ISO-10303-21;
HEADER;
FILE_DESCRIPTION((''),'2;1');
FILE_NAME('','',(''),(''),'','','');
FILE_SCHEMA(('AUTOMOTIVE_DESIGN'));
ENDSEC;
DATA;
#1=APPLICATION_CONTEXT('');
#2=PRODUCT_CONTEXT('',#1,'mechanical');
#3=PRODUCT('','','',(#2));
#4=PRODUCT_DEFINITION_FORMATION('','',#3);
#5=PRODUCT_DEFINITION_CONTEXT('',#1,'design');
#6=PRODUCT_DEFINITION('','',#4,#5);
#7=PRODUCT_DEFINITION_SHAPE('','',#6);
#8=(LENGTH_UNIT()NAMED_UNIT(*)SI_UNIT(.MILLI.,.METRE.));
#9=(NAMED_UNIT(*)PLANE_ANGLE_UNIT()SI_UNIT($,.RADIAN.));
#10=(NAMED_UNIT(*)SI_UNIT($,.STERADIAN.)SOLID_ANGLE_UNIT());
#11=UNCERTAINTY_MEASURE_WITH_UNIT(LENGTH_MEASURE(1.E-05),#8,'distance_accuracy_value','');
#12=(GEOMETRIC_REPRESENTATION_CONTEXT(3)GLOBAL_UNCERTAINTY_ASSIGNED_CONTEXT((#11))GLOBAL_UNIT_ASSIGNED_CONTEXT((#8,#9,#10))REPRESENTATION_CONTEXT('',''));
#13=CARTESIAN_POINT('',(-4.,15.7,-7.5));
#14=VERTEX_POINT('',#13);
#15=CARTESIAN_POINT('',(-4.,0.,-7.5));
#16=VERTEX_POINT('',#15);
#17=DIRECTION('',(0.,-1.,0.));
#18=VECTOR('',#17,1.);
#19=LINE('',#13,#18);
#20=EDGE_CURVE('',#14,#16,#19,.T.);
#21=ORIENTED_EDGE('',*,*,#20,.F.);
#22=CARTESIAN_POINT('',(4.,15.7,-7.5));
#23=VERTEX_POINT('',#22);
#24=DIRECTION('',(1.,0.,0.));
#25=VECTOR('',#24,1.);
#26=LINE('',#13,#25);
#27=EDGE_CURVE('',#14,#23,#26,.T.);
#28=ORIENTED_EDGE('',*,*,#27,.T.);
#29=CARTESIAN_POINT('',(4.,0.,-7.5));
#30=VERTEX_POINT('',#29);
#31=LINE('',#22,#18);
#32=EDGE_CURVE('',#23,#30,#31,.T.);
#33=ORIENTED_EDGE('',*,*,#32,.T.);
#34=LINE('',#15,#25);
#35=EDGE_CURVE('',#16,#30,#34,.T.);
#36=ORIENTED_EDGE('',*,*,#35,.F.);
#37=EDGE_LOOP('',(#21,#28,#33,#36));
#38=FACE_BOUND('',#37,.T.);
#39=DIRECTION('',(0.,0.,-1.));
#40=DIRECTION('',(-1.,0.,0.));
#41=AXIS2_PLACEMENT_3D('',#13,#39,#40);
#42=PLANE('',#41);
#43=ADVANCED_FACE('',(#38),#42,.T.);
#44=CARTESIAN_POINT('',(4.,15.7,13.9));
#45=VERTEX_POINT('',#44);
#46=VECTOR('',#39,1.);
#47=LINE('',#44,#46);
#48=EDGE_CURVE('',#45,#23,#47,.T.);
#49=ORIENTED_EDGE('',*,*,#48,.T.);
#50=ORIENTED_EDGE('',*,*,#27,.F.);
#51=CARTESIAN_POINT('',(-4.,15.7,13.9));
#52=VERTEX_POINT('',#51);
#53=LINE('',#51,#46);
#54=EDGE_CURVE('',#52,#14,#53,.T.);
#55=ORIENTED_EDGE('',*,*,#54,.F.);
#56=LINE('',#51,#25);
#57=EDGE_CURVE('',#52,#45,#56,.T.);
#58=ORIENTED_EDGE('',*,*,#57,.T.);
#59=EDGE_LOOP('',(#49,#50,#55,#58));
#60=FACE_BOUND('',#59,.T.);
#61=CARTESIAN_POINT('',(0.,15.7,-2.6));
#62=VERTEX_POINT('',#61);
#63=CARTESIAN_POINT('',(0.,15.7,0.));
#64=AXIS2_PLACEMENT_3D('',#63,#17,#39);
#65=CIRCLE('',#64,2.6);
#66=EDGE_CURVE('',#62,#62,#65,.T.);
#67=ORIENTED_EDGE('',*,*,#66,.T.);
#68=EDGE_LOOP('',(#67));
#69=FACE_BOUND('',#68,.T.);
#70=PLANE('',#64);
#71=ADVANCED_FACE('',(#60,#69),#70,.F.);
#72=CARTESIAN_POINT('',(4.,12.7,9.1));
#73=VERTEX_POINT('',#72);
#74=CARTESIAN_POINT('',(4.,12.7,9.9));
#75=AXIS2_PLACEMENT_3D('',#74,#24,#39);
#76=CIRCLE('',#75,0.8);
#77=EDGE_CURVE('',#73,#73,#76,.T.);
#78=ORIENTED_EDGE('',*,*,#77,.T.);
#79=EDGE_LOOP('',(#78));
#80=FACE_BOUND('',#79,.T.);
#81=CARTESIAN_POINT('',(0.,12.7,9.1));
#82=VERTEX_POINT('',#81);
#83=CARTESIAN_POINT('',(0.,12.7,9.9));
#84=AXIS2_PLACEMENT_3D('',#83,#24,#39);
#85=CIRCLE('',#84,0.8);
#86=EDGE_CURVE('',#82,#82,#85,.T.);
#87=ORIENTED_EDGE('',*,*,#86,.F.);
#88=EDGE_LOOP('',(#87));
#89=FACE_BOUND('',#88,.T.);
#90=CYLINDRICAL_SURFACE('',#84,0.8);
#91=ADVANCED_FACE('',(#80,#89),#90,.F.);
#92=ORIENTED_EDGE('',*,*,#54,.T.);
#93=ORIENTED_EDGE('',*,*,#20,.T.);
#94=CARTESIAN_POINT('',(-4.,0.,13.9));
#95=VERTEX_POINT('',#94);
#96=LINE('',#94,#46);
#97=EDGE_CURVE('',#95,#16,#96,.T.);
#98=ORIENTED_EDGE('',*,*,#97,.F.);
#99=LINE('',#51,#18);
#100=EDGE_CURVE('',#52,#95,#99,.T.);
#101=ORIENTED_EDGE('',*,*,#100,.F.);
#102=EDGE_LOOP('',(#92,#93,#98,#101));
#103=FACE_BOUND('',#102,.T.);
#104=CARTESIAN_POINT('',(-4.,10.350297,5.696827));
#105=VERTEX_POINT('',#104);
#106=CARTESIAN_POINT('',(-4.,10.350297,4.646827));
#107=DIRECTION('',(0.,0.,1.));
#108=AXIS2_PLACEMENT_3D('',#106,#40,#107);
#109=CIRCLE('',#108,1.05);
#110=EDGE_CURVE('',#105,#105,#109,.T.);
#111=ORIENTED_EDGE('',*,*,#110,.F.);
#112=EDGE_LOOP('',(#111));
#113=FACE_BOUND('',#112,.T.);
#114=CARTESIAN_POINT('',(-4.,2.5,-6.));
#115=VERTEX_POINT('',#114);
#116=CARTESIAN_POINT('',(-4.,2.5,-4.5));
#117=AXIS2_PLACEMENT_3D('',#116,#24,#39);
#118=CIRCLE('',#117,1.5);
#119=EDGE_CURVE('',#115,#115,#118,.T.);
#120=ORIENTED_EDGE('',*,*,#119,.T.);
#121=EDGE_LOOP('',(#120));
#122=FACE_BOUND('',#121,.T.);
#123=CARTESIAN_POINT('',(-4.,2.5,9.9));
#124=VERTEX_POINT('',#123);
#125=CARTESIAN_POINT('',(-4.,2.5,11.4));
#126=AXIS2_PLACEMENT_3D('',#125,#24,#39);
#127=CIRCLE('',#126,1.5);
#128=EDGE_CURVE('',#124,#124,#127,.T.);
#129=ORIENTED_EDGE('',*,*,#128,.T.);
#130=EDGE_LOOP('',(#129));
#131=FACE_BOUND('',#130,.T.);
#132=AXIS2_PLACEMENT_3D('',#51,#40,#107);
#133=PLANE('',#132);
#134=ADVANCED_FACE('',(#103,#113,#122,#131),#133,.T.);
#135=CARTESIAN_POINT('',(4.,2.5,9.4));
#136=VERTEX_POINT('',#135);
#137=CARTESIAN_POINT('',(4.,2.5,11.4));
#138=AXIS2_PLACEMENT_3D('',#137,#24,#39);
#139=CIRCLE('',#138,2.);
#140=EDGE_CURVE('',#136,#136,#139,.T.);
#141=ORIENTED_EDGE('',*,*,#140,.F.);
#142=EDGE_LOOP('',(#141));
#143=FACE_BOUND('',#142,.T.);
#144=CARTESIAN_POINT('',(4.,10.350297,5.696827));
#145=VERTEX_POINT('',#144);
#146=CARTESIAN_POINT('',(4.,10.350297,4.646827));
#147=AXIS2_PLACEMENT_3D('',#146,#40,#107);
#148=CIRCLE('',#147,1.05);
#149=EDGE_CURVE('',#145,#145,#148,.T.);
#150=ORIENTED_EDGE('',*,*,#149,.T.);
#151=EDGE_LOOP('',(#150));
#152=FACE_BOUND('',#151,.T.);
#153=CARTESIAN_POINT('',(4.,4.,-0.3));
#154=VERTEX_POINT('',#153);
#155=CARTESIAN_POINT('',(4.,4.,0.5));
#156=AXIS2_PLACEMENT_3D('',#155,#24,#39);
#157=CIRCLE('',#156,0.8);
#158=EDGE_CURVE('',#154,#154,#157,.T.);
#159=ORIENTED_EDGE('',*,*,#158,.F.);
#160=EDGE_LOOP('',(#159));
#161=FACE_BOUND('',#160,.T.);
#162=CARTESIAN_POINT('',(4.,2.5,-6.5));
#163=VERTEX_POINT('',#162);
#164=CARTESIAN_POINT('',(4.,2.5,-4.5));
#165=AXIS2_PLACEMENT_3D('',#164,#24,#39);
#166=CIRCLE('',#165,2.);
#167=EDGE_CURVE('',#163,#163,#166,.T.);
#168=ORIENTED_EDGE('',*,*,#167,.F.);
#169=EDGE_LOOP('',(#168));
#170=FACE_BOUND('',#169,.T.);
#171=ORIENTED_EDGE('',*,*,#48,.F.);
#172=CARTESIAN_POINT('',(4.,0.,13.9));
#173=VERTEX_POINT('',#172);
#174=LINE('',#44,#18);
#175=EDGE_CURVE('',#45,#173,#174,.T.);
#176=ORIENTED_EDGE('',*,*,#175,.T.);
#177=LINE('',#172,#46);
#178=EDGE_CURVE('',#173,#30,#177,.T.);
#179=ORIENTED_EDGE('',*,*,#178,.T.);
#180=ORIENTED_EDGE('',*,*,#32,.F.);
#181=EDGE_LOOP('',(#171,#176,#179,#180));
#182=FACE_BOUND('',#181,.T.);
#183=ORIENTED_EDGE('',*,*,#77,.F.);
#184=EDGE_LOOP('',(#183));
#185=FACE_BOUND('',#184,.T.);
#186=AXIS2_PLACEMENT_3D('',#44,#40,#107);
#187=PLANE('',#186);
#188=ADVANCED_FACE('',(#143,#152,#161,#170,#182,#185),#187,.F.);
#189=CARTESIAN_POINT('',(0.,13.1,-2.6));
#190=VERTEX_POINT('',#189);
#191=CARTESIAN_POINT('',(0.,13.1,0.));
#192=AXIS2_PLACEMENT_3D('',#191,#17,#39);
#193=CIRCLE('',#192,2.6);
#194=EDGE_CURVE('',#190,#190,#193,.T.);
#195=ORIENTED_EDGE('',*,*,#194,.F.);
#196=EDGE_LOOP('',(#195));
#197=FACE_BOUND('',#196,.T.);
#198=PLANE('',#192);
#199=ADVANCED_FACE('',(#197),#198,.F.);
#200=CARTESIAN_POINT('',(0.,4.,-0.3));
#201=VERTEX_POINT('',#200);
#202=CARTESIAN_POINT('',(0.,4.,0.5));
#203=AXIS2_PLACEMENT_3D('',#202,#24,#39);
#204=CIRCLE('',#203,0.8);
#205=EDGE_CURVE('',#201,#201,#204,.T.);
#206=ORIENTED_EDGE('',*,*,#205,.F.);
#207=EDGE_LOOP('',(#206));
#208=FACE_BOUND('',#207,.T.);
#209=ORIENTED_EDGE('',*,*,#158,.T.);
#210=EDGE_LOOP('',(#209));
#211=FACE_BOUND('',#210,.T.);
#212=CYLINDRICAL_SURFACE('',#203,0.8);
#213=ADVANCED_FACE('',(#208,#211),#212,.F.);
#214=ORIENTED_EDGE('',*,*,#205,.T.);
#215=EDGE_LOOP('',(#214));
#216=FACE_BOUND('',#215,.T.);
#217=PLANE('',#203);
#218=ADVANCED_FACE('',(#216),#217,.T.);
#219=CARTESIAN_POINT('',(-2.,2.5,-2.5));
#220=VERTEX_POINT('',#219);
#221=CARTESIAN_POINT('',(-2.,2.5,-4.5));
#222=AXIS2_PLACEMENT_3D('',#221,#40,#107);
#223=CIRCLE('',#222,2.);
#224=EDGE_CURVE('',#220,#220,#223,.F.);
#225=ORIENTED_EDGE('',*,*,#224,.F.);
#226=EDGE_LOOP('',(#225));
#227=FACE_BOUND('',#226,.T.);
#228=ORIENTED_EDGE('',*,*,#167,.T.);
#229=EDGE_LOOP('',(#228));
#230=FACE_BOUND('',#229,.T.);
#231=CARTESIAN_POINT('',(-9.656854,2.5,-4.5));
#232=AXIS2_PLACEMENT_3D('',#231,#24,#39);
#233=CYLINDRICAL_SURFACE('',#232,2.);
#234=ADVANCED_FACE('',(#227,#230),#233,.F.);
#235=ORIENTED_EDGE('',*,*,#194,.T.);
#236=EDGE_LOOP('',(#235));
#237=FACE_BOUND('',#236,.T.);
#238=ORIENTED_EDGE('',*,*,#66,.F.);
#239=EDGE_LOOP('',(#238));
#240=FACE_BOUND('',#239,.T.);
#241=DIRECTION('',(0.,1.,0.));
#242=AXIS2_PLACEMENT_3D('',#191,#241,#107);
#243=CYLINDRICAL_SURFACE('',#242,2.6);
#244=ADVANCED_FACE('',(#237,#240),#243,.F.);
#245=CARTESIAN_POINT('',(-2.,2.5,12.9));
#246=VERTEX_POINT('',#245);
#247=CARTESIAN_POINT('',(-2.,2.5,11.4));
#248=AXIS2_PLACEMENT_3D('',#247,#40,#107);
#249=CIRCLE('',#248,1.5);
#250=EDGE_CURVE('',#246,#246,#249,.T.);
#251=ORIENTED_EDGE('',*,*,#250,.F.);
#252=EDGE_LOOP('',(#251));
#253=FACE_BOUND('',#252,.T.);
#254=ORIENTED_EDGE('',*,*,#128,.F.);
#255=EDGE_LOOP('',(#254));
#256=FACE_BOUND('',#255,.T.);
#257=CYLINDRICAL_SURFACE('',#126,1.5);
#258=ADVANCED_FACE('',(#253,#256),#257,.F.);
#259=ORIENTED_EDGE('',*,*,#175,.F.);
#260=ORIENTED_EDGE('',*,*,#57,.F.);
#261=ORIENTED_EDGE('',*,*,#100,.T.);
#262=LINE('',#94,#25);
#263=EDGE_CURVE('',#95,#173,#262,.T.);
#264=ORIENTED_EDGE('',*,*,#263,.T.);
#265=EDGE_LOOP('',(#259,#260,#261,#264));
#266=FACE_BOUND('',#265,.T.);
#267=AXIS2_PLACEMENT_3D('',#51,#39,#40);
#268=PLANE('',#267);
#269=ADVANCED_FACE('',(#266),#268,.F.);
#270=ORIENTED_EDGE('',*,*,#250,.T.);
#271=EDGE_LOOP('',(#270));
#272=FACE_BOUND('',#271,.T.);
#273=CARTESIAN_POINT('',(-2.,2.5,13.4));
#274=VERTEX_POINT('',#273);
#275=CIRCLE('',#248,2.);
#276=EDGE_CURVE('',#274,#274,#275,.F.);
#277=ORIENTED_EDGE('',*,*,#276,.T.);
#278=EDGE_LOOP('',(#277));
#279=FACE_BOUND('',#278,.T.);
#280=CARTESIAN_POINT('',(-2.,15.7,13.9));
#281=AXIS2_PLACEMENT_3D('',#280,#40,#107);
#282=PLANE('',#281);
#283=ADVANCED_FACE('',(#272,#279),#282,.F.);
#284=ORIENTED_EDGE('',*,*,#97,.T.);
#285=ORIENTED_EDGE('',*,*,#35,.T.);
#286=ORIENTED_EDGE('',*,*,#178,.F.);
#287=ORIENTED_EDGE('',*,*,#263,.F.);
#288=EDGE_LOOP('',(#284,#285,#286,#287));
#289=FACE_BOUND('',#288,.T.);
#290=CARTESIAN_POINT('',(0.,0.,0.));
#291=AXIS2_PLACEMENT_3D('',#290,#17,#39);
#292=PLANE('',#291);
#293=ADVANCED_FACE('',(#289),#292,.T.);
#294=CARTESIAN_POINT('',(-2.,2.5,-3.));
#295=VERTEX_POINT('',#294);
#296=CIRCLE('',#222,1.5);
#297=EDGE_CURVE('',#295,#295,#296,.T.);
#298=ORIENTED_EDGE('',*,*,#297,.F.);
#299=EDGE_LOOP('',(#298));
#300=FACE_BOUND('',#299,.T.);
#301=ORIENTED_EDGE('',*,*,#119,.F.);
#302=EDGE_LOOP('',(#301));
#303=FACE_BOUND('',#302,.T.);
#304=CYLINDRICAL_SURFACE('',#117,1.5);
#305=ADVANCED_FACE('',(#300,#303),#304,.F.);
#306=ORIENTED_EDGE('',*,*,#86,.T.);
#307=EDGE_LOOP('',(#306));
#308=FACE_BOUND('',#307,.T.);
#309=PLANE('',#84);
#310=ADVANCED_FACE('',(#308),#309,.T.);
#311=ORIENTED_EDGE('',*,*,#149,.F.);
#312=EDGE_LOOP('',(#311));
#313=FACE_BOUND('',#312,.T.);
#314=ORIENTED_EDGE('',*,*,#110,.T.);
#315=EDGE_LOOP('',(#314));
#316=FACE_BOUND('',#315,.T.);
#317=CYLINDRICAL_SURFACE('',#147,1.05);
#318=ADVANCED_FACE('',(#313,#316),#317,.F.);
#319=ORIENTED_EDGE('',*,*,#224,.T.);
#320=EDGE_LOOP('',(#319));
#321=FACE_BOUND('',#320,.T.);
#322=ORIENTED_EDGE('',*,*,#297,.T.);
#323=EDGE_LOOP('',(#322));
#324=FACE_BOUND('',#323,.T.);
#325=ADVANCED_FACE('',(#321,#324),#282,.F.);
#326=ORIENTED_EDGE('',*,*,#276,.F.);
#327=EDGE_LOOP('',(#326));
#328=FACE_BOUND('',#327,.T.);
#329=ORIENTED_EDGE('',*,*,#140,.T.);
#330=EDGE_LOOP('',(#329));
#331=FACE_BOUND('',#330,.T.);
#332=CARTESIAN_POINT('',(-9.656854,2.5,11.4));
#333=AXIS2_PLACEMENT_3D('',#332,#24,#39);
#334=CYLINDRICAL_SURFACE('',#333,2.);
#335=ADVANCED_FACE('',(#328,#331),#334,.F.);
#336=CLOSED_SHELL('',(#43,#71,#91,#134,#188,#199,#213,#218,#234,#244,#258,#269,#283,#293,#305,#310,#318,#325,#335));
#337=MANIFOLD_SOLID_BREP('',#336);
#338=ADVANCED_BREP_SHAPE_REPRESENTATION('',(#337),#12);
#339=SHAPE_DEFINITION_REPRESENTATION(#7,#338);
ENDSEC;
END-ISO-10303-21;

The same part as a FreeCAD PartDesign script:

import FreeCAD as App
import Part
import Sketcher


def add_polygon(sketch, points):
    """Adds a closed chain of lines whose ends are joined by coincident constraints."""
    first, n = sketch.GeometryCount, len(points)
    for a, b in zip(points, points[1:] + points[:1]):
        sketch.addGeometry(Part.LineSegment(App.Vector(*a, 0), App.Vector(*b, 0)), False)
    for i in range(n):
        sketch.addConstraint(Sketcher.Constraint("Coincident", first + i, 2, first + (i + 1) % n, 1))

doc = App.newDocument("Part")
body = doc.addObject("PartDesign::Body", "Body")

sketch1 = body.newObject("Sketcher::SketchObject", "Sketch")
sketch1.AttachmentSupport = (doc.getObject("XZ_Plane"), [""])
sketch1.MapMode = "FlatFace"
add_polygon(sketch1, [(-4, -8), (-4, 14), (4, 14), (4, -8)])
sketch1.addConstraint([
    Sketcher.Constraint("Vertical", 0),
    Sketcher.Constraint("Horizontal", 1),
    Sketcher.Constraint("Vertical", 2),
    Sketcher.Constraint("Horizontal", 3),
    Sketcher.Constraint("DistanceX", 1, 1, 1, 2, 8.0),
    Sketcher.Constraint("DistanceY", 0, 1, 0, 2, 21.4),
    Sketcher.Constraint("DistanceX", 0, 2, -1, 1, 4.0),
    Sketcher.Constraint("DistanceY", -1, 1, 0, 2, 13.9),
])
pad1 = body.newObject("PartDesign::Pad", "Pad")
pad1.Profile = sketch1
pad1.Length = 15.7
pad1.Reversed = True

sketch2 = body.newObject("Sketcher::SketchObject", "Sketch001")
sketch2.AttachmentSupport = (doc.getObject("XZ_Plane"), [""])
sketch2.MapMode = "FlatFace"
sketch2.AttachmentOffset = App.Placement(App.Vector(0, 0, -15.7), App.Rotation())
sketch2.addGeometry(Part.Circle(App.Vector(0, 0, 0), App.Vector(0, 0, 1), 2.6), False)
sketch2.addConstraint([
    Sketcher.Constraint("Coincident", 0, 3, -1, 1),
    Sketcher.Constraint("Diameter", 0, 5.2),
])
pocket1 = body.newObject("PartDesign::Pocket", "Pocket")
pocket1.Profile = sketch2
pocket1.Length = 2.6
pocket1.Reversed = True

sketch3 = body.newObject("Sketcher::SketchObject", "Sketch002")
sketch3.AttachmentSupport = (doc.getObject("YZ_Plane"), [""])
sketch3.MapMode = "FlatFace"
sketch3.AttachmentOffset = App.Placement(App.Vector(0, 0, -4), App.Rotation())
sketch3.addGeometry(Part.Circle(App.Vector(10.4, 4.6, 0), App.Vector(0, 0, 1), 1.1), False)
sketch3.addConstraint([
    Sketcher.Constraint("Diameter", 0, 2.1),
    Sketcher.Constraint("DistanceX", -1, 1, 0, 3, 10.350297),
    Sketcher.Constraint("DistanceY", -1, 1, 0, 3, 4.646827),
])
pocket2 = body.newObject("PartDesign::Pocket", "Pocket001")
pocket2.Profile = sketch3
pocket2.Type = "ThroughAll"
pocket2.Reversed = True

sketch4 = body.newObject("Sketcher::SketchObject", "Sketch003")
sketch4.AttachmentSupport = (doc.getObject("YZ_Plane"), [""])
sketch4.MapMode = "FlatFace"
sketch4.AttachmentOffset = App.Placement(App.Vector(0, 0, 4), App.Rotation())
sketch4.addGeometry([
    Part.Circle(App.Vector(2.5, -4.5, 0), App.Vector(0, 0, 1), 2),
    Part.Circle(App.Vector(2.5, 11.4, 0), App.Vector(0, 0, 1), 2),
], False)
sketch4.addConstraint([
    Sketcher.Constraint("Equal", 0, 1),
    Sketcher.Constraint("Vertical", 0, 3, 1, 3),
    Sketcher.Constraint("Diameter", 0, 4.0),
    Sketcher.Constraint("DistanceX", -1, 1, 0, 3, 2.5),
    Sketcher.Constraint("DistanceY", 0, 3, -1, 1, 4.5),
    Sketcher.Constraint("DistanceY", -1, 1, 1, 3, 11.4),
])
pocket3 = body.newObject("PartDesign::Pocket", "Pocket002")
pocket3.Profile = sketch4
pocket3.Length = 6

sketch5 = body.newObject("Sketcher::SketchObject", "Sketch004")
sketch5.AttachmentSupport = (doc.getObject("YZ_Plane"), [""])
sketch5.MapMode = "FlatFace"
sketch5.AttachmentOffset = App.Placement(App.Vector(0, 0, 4), App.Rotation())
sketch5.addGeometry([
    Part.Circle(App.Vector(2.5, -4.5, 0), App.Vector(0, 0, 1), 1.5),
    Part.Circle(App.Vector(2.5, 11.4, 0), App.Vector(0, 0, 1), 1.5),
], False)
sketch5.addConstraint([
    Sketcher.Constraint("Equal", 0, 1),
    Sketcher.Constraint("Vertical", 0, 3, 1, 3),
    Sketcher.Constraint("Diameter", 0, 3.0),
    Sketcher.Constraint("DistanceX", -1, 1, 0, 3, 2.5),
    Sketcher.Constraint("DistanceY", 0, 3, -1, 1, 4.5),
    Sketcher.Constraint("DistanceY", -1, 1, 1, 3, 11.4),
])
pocket4 = body.newObject("PartDesign::Pocket", "Pocket003")
pocket4.Profile = sketch5
pocket4.Type = "ThroughAll"

sketch6 = body.newObject("Sketcher::SketchObject", "Sketch005")
sketch6.AttachmentSupport = (doc.getObject("YZ_Plane"), [""])
sketch6.MapMode = "FlatFace"
sketch6.AttachmentOffset = App.Placement(App.Vector(0, 0, 4), App.Rotation())
sketch6.addGeometry([
    Part.Circle(App.Vector(4, 0.5, 0), App.Vector(0, 0, 1), 0.8),
    Part.Circle(App.Vector(12.7, 9.9, 0), App.Vector(0, 0, 1), 0.8),
], False)
sketch6.addConstraint([
    Sketcher.Constraint("Equal", 0, 1),
    Sketcher.Constraint("Diameter", 0, 1.6),
    Sketcher.Constraint("DistanceX", -1, 1, 0, 3, 4.0),
    Sketcher.Constraint("DistanceY", -1, 1, 0, 3, 0.5),
    Sketcher.Constraint("DistanceX", -1, 1, 1, 3, 12.7),
    Sketcher.Constraint("DistanceY", -1, 1, 1, 3, 9.9),
])
pocket5 = body.newObject("PartDesign::Pocket", "Pocket004")
pocket5.Profile = sketch6
pocket5.Length = 4

doc.recompute()
